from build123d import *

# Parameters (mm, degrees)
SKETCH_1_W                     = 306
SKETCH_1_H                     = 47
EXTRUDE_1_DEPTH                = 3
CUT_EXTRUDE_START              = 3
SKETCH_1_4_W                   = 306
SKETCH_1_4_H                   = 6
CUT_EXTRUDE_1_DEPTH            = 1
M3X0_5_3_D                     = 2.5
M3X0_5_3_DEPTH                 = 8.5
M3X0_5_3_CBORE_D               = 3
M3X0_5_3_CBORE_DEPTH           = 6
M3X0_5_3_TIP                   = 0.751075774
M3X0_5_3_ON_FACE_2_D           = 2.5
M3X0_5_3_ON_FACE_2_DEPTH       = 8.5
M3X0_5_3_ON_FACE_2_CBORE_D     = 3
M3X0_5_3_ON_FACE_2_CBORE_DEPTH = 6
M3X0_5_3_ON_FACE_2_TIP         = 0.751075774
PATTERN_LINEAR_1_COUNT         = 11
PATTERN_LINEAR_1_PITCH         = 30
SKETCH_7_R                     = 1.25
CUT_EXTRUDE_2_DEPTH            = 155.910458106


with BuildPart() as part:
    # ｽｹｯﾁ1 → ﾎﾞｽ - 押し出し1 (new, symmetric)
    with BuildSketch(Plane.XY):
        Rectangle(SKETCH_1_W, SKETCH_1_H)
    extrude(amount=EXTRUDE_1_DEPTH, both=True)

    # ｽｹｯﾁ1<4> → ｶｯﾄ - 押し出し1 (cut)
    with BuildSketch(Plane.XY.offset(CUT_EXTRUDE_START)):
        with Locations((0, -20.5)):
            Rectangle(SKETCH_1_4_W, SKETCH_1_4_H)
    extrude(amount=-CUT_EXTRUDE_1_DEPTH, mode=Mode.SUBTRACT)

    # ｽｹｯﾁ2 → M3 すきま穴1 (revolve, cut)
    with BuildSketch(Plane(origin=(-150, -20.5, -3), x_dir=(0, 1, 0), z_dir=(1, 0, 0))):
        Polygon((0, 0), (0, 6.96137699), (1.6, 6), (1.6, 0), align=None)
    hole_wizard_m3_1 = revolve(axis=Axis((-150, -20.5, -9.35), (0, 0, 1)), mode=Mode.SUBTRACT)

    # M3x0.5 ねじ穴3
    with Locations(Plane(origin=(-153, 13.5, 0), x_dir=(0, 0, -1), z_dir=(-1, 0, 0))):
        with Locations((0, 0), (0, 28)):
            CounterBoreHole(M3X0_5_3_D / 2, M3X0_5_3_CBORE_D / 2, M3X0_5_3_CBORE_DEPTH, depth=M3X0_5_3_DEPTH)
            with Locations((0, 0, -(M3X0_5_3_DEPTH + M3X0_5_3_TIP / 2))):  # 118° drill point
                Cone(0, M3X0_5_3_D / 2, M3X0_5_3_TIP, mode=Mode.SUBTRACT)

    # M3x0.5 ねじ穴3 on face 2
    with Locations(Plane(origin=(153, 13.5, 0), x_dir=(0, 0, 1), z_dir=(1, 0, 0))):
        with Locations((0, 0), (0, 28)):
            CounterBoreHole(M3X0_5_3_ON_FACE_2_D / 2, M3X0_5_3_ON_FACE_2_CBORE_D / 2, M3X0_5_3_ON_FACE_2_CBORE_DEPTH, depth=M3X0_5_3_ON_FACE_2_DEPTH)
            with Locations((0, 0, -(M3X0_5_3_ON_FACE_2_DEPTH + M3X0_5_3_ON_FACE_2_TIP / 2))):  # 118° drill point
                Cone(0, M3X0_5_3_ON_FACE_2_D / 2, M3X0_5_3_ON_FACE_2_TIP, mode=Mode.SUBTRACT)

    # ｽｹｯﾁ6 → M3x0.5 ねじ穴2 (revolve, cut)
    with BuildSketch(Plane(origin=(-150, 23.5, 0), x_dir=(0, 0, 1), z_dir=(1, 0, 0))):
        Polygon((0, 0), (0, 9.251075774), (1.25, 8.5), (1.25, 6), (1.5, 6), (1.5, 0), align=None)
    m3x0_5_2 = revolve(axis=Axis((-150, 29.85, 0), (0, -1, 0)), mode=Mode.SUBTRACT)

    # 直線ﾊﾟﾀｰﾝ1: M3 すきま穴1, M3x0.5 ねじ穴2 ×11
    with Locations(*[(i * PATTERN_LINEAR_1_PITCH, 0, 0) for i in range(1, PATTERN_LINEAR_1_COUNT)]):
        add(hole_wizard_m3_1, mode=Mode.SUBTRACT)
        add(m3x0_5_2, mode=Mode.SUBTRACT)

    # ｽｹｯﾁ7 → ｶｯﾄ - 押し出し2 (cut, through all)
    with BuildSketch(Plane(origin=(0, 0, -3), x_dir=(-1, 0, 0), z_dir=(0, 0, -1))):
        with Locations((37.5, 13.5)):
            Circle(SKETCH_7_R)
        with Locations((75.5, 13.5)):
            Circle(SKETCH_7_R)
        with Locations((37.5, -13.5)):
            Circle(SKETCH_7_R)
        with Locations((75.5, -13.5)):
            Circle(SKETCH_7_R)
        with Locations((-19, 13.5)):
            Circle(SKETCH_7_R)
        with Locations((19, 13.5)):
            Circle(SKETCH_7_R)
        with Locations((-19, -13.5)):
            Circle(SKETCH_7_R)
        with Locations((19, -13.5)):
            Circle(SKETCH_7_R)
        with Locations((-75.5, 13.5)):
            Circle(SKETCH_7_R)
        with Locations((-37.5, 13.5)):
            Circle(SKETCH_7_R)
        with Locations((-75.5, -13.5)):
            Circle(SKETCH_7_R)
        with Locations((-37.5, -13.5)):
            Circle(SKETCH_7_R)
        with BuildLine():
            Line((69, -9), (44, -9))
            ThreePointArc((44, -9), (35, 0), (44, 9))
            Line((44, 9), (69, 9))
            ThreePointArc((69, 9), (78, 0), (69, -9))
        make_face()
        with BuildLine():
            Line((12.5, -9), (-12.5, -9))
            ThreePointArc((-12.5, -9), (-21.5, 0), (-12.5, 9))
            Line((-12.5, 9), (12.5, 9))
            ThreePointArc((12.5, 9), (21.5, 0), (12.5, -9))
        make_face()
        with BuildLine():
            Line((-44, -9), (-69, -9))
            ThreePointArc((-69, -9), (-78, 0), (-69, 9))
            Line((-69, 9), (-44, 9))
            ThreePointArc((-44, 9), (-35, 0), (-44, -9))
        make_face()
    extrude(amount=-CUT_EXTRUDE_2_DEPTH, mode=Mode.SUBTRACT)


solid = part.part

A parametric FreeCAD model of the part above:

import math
import FreeCAD as App
import Part
import Sketcher
Q = App.Units.Quantity

doc = App.newDocument("Part")
body = doc.addObject("PartDesign::Body", "Body")

# Sketch on XY plane
sketch1 = body.newObject("Sketcher::SketchObject", "Sketch")
sketch1.AttachmentSupport = (doc.getObject("XY_Plane"), [""])
sketch1.MapMode = "FlatFace"
sketch1.addGeometry(Part.LineSegment(App.Vector(-153, 24, 0), App.Vector(-153, -24, 0)), False)
sketch1.addGeometry(Part.LineSegment(App.Vector(-153, -24, 0), App.Vector(153, -24, 0)), False)
sketch1.addGeometry(Part.LineSegment(App.Vector(153, -24, 0), App.Vector(153, 24, 0)), False)
sketch1.addGeometry(Part.LineSegment(App.Vector(153, 24, 0), App.Vector(-153, 24, 0)), False)
sketch1.addConstraint(Sketcher.Constraint("Coincident", 0, 2, 1, 1))
sketch1.addConstraint(Sketcher.Constraint("Coincident", 1, 2, 2, 1))
sketch1.addConstraint(Sketcher.Constraint("Coincident", 2, 2, 3, 1))
sketch1.addConstraint(Sketcher.Constraint("Coincident", 3, 2, 0, 1))
sketch1.addConstraint(Sketcher.Constraint("Vertical", 0))
sketch1.addConstraint(Sketcher.Constraint("Horizontal", 1))
sketch1.addConstraint(Sketcher.Constraint("Vertical", 2))
sketch1.addConstraint(Sketcher.Constraint("Horizontal", 3))
sketch1.addConstraint(Sketcher.Constraint("Symmetric", 0, 2, 2, 2, -1, 1))
sketch1.addConstraint(Sketcher.Constraint("DistanceX", 1, 1, 1, 2, Q("306 mm")))
sketch1.addConstraint(Sketcher.Constraint("DistanceY", 0, 2, 0, 1, Q("47 mm")))
pad1 = body.newObject("PartDesign::Pad", "Pad")
pad1.Profile = sketch1
pad1.Length = 6
pad1.Midplane = True

# Sketch on XY plane
sketch2 = body.newObject("Sketcher::SketchObject", "Sketch001")
sketch2.AttachmentSupport = (doc.getObject("XY_Plane"), [""])
sketch2.MapMode = "FlatFace"
sketch2.AttachmentOffset = App.Placement(App.Vector(0, 0, 3), App.Rotation())
sketch2.addGeometry(Part.LineSegment(App.Vector(-153, -18, 0), App.Vector(-153, -24, 0)), False)
sketch2.addGeometry(Part.LineSegment(App.Vector(-153, -24, 0), App.Vector(153, -24, 0)), False)
sketch2.addGeometry(Part.LineSegment(App.Vector(153, -24, 0), App.Vector(153, -18, 0)), False)
sketch2.addGeometry(Part.LineSegment(App.Vector(153, -18, 0), App.Vector(-153, -18, 0)), False)
sketch2.addConstraint(Sketcher.Constraint("Coincident", 0, 2, 1, 1))
sketch2.addConstraint(Sketcher.Constraint("Coincident", 1, 2, 2, 1))
sketch2.addConstraint(Sketcher.Constraint("Coincident", 2, 2, 3, 1))
sketch2.addConstraint(Sketcher.Constraint("Coincident", 3, 2, 0, 1))
sketch2.addConstraint(Sketcher.Constraint("Vertical", 0))
sketch2.addConstraint(Sketcher.Constraint("Horizontal", 1))
sketch2.addConstraint(Sketcher.Constraint("Vertical", 2))
sketch2.addConstraint(Sketcher.Constraint("Horizontal", 3))
sketch2.addConstraint(Sketcher.Constraint("DistanceX", 1, 1, 1, 2, Q("306 mm")))
sketch2.addConstraint(Sketcher.Constraint("DistanceY", 0, 2, 0, 1, Q("6 mm")))
sketch2.addConstraint(Sketcher.Constraint("DistanceX", 0, 2, -1, 1, Q("153 mm")))
sketch2.addConstraint(Sketcher.Constraint("DistanceY", 0, 2, -1, 1, Q("23.5 mm")))
pocket1 = body.newObject("PartDesign::Pocket", "Pocket")
pocket1.Profile = sketch2
pocket1.Length = 1

# Sketch on YZ plane
sketch3 = body.newObject("Sketcher::SketchObject", "Sketch002")
sketch3.AttachmentSupport = (doc.getObject("YZ_Plane"), [""])
sketch3.MapMode = "FlatFace"
sketch3.AttachmentOffset = App.Placement(App.Vector(0, 0, -150), App.Rotation())
sketch3.addGeometry(Part.LineSegment(App.Vector(-20.5, 4, 0), App.Vector(-20.5, -3, 0)), False)
sketch3.addGeometry(Part.LineSegment(App.Vector(-20.5, -3, 0), App.Vector(-18.9, -3, 0)), False)
sketch3.addGeometry(Part.LineSegment(App.Vector(-18.9, -3, 0), App.Vector(-18.9, 3, 0)), False)
sketch3.addGeometry(Part.LineSegment(App.Vector(-18.9, 3, 0), App.Vector(-20.5, 4, 0)), False)
sketch3.addGeometry(Part.LineSegment(App.Vector(-20.5, -3, 0), App.Vector(-20.5, 4, 0)), True)  # axis
sketch3.addConstraint(Sketcher.Constraint("Coincident", 0, 2, 1, 1))
sketch3.addConstraint(Sketcher.Constraint("Coincident", 1, 2, 2, 1))
sketch3.addConstraint(Sketcher.Constraint("Coincident", 2, 2, 3, 1))
sketch3.addConstraint(Sketcher.Constraint("Coincident", 3, 2, 0, 1))
sketch3.addConstraint(Sketcher.Constraint("Vertical", 0))
sketch3.addConstraint(Sketcher.Constraint("Horizontal", 1))
sketch3.addConstraint(Sketcher.Constraint("Vertical", 2))
sketch3.addConstraint(Sketcher.Constraint("Vertical", 4))
sketch3.addConstraint(Sketcher.Constraint("Coincident", 4, 1, 0, 2))
sketch3.addConstraint(Sketcher.Constraint("Equal", 0, 4))
sketch3.addConstraint(Sketcher.Constraint("DistanceY", 2, 1, 2, 2, Q("6 mm")))
sketch3.addConstraint(Sketcher.Constraint("Angle", 3, Q("149 deg")))
sketch3.addConstraint(Sketcher.Constraint("DistanceX", 1, 1, 1, 2, Q("1.6 mm")))
sketch3.addConstraint(Sketcher.Constraint("DistanceY", 0, 2, -1, 1, Q("3 mm")))
sketch3.addConstraint(Sketcher.Constraint("DistanceX", 0, 2, -1, 1, Q("20.5 mm")))
groove = body.newObject("PartDesign::Groove", "Groove")
groove.Profile = sketch3
groove.ReferenceAxis = (sketch3, ["Axis0"])
groove.Angle = 360

# Sketch on YZ plane
sketch4 = body.newObject("Sketcher::SketchObject", "Sketch003")
sketch4.AttachmentSupport = (doc.getObject("YZ_Plane"), [""])
sketch4.MapMode = "FlatFace"
sketch4.AttachmentOffset = App.Placement(App.Vector(0, 0, -153), App.Rotation())
sketch4.addGeometry(Part.Circle(App.Vector(13.5, 0, 0), App.Vector(0, 0, 1), 1.2), False)
sketch4.addGeometry(Part.Circle(App.Vector(-14.5, 0, 0), App.Vector(0, 0, 1), 1.2), False)
sketch4.addConstraint(Sketcher.Constraint("Equal", 0, 1))
sketch4.addConstraint(Sketcher.Constraint("PointOnObject", 0, 3, -1))
sketch4.addConstraint(Sketcher.Constraint("PointOnObject", 1, 3, -1))
sketch4.addConstraint(Sketcher.Constraint("Diameter", 0, Q("2.5 mm")))
sketch4.addConstraint(Sketcher.Constraint("DistanceX", 1, 3, 0, 3, Q("28 mm")))
sketch4.addConstraint(Sketcher.Constraint("DistanceX", -1, 1, 0, 3, Q("13.5 mm")))
doc.recompute()
hole = body.newObject("PartDesign::Hole", "Hole")
hole.Profile = sketch4
hole.ThreadType = "None"
hole.Diameter = 2.5
hole.DepthType = "Dimension"
hole.Depth = 8.5
hole.DrillPoint = "Angled"
hole.DrillPointAngle = 118
hole.HoleCutType = "Counterbore"
hole.HoleCutDiameter = 3
hole.HoleCutDepth = 6
hole.Reversed = True

# Sketch on YZ plane
sketch5 = body.newObject("Sketcher::SketchObject", "Sketch004")
sketch5.AttachmentSupport = (doc.getObject("YZ_Plane"), [""])
sketch5.MapMode = "FlatFace"
sketch5.AttachmentOffset = App.Placement(App.Vector(0, 0, 153), App.Rotation())
sketch5.addGeometry(Part.Circle(App.Vector(13.5, 0, 0), App.Vector(0, 0, 1), 1.2), False)
sketch5.addGeometry(Part.Circle(App.Vector(-14.5, 0, 0), App.Vector(0, 0, 1), 1.2), False)
sketch5.addConstraint(Sketcher.Constraint("Equal", 0, 1))
sketch5.addConstraint(Sketcher.Constraint("PointOnObject", 0, 3, -1))
sketch5.addConstraint(Sketcher.Constraint("PointOnObject", 1, 3, -1))
sketch5.addConstraint(Sketcher.Constraint("Diameter", 0, Q("2.5 mm")))
sketch5.addConstraint(Sketcher.Constraint("DistanceX", 1, 3, 0, 3, Q("28 mm")))
sketch5.addConstraint(Sketcher.Constraint("DistanceX", -1, 1, 0, 3, Q("13.5 mm")))
doc.recompute()
hole2 = body.newObject("PartDesign::Hole", "Hole001")
hole2.Profile = sketch5
hole2.ThreadType = "None"
hole2.Diameter = 2.5
hole2.DepthType = "Dimension"
hole2.Depth = 8.5
hole2.DrillPoint = "Angled"
hole2.DrillPointAngle = 118
hole2.HoleCutType = "Counterbore"
hole2.HoleCutDiameter = 3
hole2.HoleCutDepth = 6

# Sketch on YZ plane
sketch6 = body.newObject("Sketcher::SketchObject", "Sketch005")
sketch6.AttachmentSupport = (doc.getObject("YZ_Plane"), [""])
sketch6.MapMode = "FlatFace"
sketch6.AttachmentOffset = App.Placement(App.Vector(0, 0, -150), App.Rotation())
sketch6.addGeometry(Part.LineSegment(App.Vector(14.25, 0, 0), App.Vector(23.5, 0, 0)), False)
sketch6.addGeometry(Part.LineSegment(App.Vector(23.5, 0, 0), App.Vector(23.5, 1.5, 0)), False)
sketch6.addGeometry(Part.LineSegment(App.Vector(23.5, 1.5, 0), App.Vector(17.5, 1.5, 0)), False)
sketch6.addGeometry(Part.LineSegment(App.Vector(17.5, 1.5, 0), App.Vector(17.5, 1.25, 0)), False)
sketch6.addGeometry(Part.LineSegment(App.Vector(17.5, 1.25, 0), App.Vector(15, 1.25, 0)), False)
sketch6.addGeometry(Part.LineSegment(App.Vector(15, 1.25, 0), App.Vector(14.25, 0, 0)), False)
sketch6.addConstraint(Sketcher.Constraint("Coincident", 0, 2, 1, 1))
sketch6.addConstraint(Sketcher.Constraint("Coincident", 1, 2, 2, 1))
sketch6.addConstraint(Sketcher.Constraint("Coincident", 2, 2, 3, 1))
sketch6.addConstraint(Sketcher.Constraint("Coincident", 3, 2, 4, 1))
sketch6.addConstraint(Sketcher.Constraint("Coincident", 4, 2, 5, 1))
sketch6.addConstraint(Sketcher.Constraint("Coincident", 5, 2, 0, 1))
sketch6.addConstraint(Sketcher.Constraint("Horizontal", 0))
sketch6.addConstraint(Sketcher.Constraint("Vertical", 1))
sketch6.addConstraint(Sketcher.Constraint("Horizontal", 2))
sketch6.addConstraint(Sketcher.Constraint("Vertical", 3))
sketch6.addConstraint(Sketcher.Constraint("Horizontal", 4))
sketch6.addConstraint(Sketcher.Constraint("PointOnObject", 0, 2, -1))
sketch6.addConstraint(Sketcher.Constraint("DistanceX", 2, 2, 2, 1, Q("6 mm")))
sketch6.addConstraint(Sketcher.Constraint("Angle", 5, Q("-121 deg")))
sketch6.addConstraint(Sketcher.Constraint("DistanceX", 4, 2, 4, 1, Q("2.5 mm")))
sketch6.addConstraint(Sketcher.Constraint("DistanceY", 1, 1, 1, 2, Q("1.5 mm")))
sketch6.addConstraint(Sketcher.Constraint("DistanceX", -1, 1, 4, 2, Q("15 mm")))
sketch6.addConstraint(Sketcher.Constraint("DistanceY", 3, 2, 3, 1, Q("0.25 mm")))
groove2 = body.newObject("PartDesign::Groove", "Groove001")
groove2.Profile = sketch6
groove2.ReferenceAxis = (sketch6, ["H_Axis"])
groove2.Angle = 360
doc.recompute()

linearpattern = body.newObject("PartDesign::LinearPattern", "LinearPattern")
linearpattern.Originals = [groove, groove2]
linearpattern.Direction = (doc.getObject("X_Axis"), [""])
linearpattern.Mode = "offset"
linearpattern.Offset = 30
linearpattern.Occurrences = 11
body.Tip = linearpattern

# Sketch on XY plane
sketch7 = body.newObject("Sketcher::SketchObject", "Sketch006")
sketch7.AttachmentSupport = (doc.getObject("XY_Plane"), [""])
sketch7.MapMode = "FlatFace"
sketch7.AttachmentOffset = App.Placement(App.Vector(0, 0, -3), App.Rotation())
sketch7.addGeometry(Part.Circle(App.Vector(-37.5, 13.5, 0), App.Vector(0, 0, 1), 1.2), False)
sketch7.addGeometry(Part.Circle(App.Vector(-75.5, 13.5, 0), App.Vector(0, 0, 1), 1.2), False)
sketch7.addGeometry(Part.Circle(App.Vector(-37.5, -13.5, 0), App.Vector(0, 0, 1), 1.2), False)
sketch7.addGeometry(Part.Circle(App.Vector(-75.5, -13.5, 0), App.Vector(0, 0, 1), 1.2), False)
sketch7.addGeometry(Part.Circle(App.Vector(19, 13.5, 0), App.Vector(0, 0, 1), 1.2), False)
sketch7.addGeometry(Part.Circle(App.Vector(-19, 13.5, 0), App.Vector(0, 0, 1), 1.2), False)
sketch7.addGeometry(Part.Circle(App.Vector(19, -13.5, 0), App.Vector(0, 0, 1), 1.2), False)
sketch7.addGeometry(Part.Circle(App.Vector(-19, -13.5, 0), App.Vector(0, 0, 1), 1.2), False)
sketch7.addGeometry(Part.Circle(App.Vector(75.5, 13.5, 0), App.Vector(0, 0, 1), 1.2), False)
sketch7.addGeometry(Part.Circle(App.Vector(37.5, 13.5, 0), App.Vector(0, 0, 1), 1.2), False)
sketch7.addGeometry(Part.Circle(App.Vector(75.5, -13.5, 0), App.Vector(0, 0, 1), 1.2), False)
sketch7.addGeometry(Part.Circle(App.Vector(37.5, -13.5, 0), App.Vector(0, 0, 1), 1.2), False)
sketch7.addGeometry(Part.LineSegment(App.Vector(-44, -9, 0), App.Vector(-69, -9, 0)), False)
sketch7.addGeometry(Part.ArcOfCircle(Part.Circle(App.Vector(-69, 0, 0), App.Vector(0, 0, 1), 9), math.radians(90), math.radians(270)), False)
sketch7.addGeometry(Part.LineSegment(App.Vector(-69, 9, 0), App.Vector(-44, 9, 0)), False)
sketch7.addGeometry(Part.ArcOfCircle(Part.Circle(App.Vector(-44, 0, 0), App.Vector(0, 0, 1), 9), math.radians(-90), math.radians(90)), False)
sketch7.addGeometry(Part.LineSegment(App.Vector(12.5, -9, 0), App.Vector(-12.5, -9, 0)), False)
sketch7.addGeometry(Part.ArcOfCircle(Part.Circle(App.Vector(-12.5, 0, 0), App.Vector(0, 0, 1), 9), math.radians(90), math.radians(270)), False)
sketch7.addGeometry(Part.LineSegment(App.Vector(-12.5, 9, 0), App.Vector(12.5, 9, 0)), False)
sketch7.addGeometry(Part.ArcOfCircle(Part.Circle(App.Vector(12.5, 0, 0), App.Vector(0, 0, 1), 9), math.radians(-90), math.radians(90)), False)
sketch7.addGeometry(Part.LineSegment(App.Vector(69, -9, 0), App.Vector(44, -9, 0)), False)
sketch7.addGeometry(Part.ArcOfCircle(Part.Circle(App.Vector(44, 0, 0), App.Vector(0, 0, 1), 9), math.radians(90), math.radians(270)), False)
sketch7.addGeometry(Part.LineSegment(App.Vector(44, 9, 0), App.Vector(69, 9, 0)), False)
sketch7.addGeometry(Part.ArcOfCircle(Part.Circle(App.Vector(69, 0, 0), App.Vector(0, 0, 1), 9), math.radians(-90), math.radians(90)), False)
sketch7.addConstraint(Sketcher.Constraint("Tangent", 12, 2, 13, 2))
sketch7.addConstraint(Sketcher.Constraint("Tangent", 13, 1, 14, 1))
sketch7.addConstraint(Sketcher.Constraint("Tangent", 14, 2, 15, 2))
sketch7.addConstraint(Sketcher.Constraint("Tangent", 15, 1, 12, 1))
sketch7.addConstraint(Sketcher.Constraint("Tangent", 16, 2, 17, 2))
sketch7.addConstraint(Sketcher.Constraint("Tangent", 17, 1, 18, 1))
sketch7.addConstraint(Sketcher.Constraint("Tangent", 18, 2, 19, 2))
sketch7.addConstraint(Sketcher.Constraint("Tangent", 19, 1, 16, 1))
sketch7.addConstraint(Sketcher.Constraint("Tangent", 20, 2, 21, 2))
sketch7.addConstraint(Sketcher.Constraint("Tangent", 21, 1, 22, 1))
sketch7.addConstraint(Sketcher.Constraint("Tangent", 22, 2, 23, 2))
sketch7.addConstraint(Sketcher.Constraint("Tangent", 23, 1, 20, 1))
sketch7.addConstraint(Sketcher.Constraint("Horizontal", 12))
sketch7.addConstraint(Sketcher.Constraint("Horizontal", 14))
sketch7.addConstraint(Sketcher.Constraint("Horizontal", 16))
sketch7.addConstraint(Sketcher.Constraint("Horizontal", 18))
sketch7.addConstraint(Sketcher.Constraint("Horizontal", 20))
sketch7.addConstraint(Sketcher.Constraint("Horizontal", 22))
sketch7.addConstraint(Sketcher.Constraint("Equal", 0, 1))
sketch7.addConstraint(Sketcher.Constraint("Equal", 1, 2))
sketch7.addConstraint(Sketcher.Constraint("Equal", 2, 3))
sketch7.addConstraint(Sketcher.Constraint("Equal", 3, 4))
sketch7.addConstraint(Sketcher.Constraint("Equal", 4, 5))
sketch7.addConstraint(Sketcher.Constraint("Equal", 5, 6))
sketch7.addConstraint(Sketcher.Constraint("Equal", 6, 7))
sketch7.addConstraint(Sketcher.Constraint("Equal", 7, 8))
sketch7.addConstraint(Sketcher.Constraint("Equal", 8, 9))
sketch7.addConstraint(Sketcher.Constraint("Equal", 9, 10))
sketch7.addConstraint(Sketcher.Constraint("Equal", 10, 11))
sketch7.addConstraint(Sketcher.Constraint("Equal", 15, 17))
sketch7.addConstraint(Sketcher.Constraint("Equal", 19, 21))
sketch7.addConstraint(Sketcher.Constraint("Symmetric", 5, 3, 6, 3, -1, 1))
sketch7.addConstraint(Sketcher.Constraint("Symmetric", 4, 3, 7, 3, -1, 1))
sketch7.addConstraint(Sketcher.Constraint("Symmetric", 3, 3, 8, 3, -1, 1))
sketch7.addConstraint(Sketcher.Constraint("Symmetric", 2, 3, 9, 3, -1, 1))
sketch7.addConstraint(Sketcher.Constraint("Symmetric", 1, 3, 10, 3, -1, 1))
sketch7.addConstraint(Sketcher.Constraint("Symmetric", 0, 3, 11, 3, -1, 1))
sketch7.addConstraint(Sketcher.Constraint("Symmetric", 17, 3, 19, 3, -1, 1))
sketch7.addConstraint(Sketcher.Constraint("Symmetric", 15, 3, 21, 3, -1, 1))
sketch7.addConstraint(Sketcher.Constraint("Symmetric", 4, 3, 5, 3, -2))
sketch7.addConstraint(Sketcher.Constraint("Symmetric", 1, 3, 8, 3, -2))
sketch7.addConstraint(Sketcher.Constraint("Symmetric", 0, 3, 9, 3, -2))
sketch7.addConstraint(Sketcher.Constraint("Symmetric", 13, 3, 23, 3, -2))
sketch7.addConstraint(Sketcher.Constraint("Horizontal", 0, 3, 1, 3))
sketch7.addConstraint(Sketcher.Constraint("Horizontal", 1, 3, 4, 3))
sketch7.addConstraint(Sketcher.Constraint("Equal", 14, 16))
sketch7.addConstraint(Sketcher.Constraint("Radius", 13, Q("9 mm")))
sketch7.addConstraint(Sketcher.Constraint("Diameter", 0, Q("2.5 mm")))
sketch7.addConstraint(Sketcher.Constraint("DistanceX", 12, 2, 12, 1, Q("25 mm")))
sketch7.addConstraint(Sketcher.Constraint("DistanceX", -1, 1, 4, 3, Q("19 mm")))
sketch7.addConstraint(Sketcher.Constraint("DistanceX", 13, 3, -1, 1, Q("69 mm")))
sketch7.addConstraint(Sketcher.Constraint("DistanceX", 1, 3, 0, 3, Q("38 mm")))
sketch7.addConstraint(Sketcher.Constraint("DistanceY", 2, 3, 0, 3, Q("27 mm")))
sketch7.addConstraint(Sketcher.Constraint("DistanceX", 0, 3, 8, 3, Q("113 mm")))
pocket2 = body.newObject("PartDesign::Pocket", "Pocket001")
pocket2.Profile = sketch7
pocket2.Type = "ThroughAll"
pocket2.Reversed = True

doc.recompute()
